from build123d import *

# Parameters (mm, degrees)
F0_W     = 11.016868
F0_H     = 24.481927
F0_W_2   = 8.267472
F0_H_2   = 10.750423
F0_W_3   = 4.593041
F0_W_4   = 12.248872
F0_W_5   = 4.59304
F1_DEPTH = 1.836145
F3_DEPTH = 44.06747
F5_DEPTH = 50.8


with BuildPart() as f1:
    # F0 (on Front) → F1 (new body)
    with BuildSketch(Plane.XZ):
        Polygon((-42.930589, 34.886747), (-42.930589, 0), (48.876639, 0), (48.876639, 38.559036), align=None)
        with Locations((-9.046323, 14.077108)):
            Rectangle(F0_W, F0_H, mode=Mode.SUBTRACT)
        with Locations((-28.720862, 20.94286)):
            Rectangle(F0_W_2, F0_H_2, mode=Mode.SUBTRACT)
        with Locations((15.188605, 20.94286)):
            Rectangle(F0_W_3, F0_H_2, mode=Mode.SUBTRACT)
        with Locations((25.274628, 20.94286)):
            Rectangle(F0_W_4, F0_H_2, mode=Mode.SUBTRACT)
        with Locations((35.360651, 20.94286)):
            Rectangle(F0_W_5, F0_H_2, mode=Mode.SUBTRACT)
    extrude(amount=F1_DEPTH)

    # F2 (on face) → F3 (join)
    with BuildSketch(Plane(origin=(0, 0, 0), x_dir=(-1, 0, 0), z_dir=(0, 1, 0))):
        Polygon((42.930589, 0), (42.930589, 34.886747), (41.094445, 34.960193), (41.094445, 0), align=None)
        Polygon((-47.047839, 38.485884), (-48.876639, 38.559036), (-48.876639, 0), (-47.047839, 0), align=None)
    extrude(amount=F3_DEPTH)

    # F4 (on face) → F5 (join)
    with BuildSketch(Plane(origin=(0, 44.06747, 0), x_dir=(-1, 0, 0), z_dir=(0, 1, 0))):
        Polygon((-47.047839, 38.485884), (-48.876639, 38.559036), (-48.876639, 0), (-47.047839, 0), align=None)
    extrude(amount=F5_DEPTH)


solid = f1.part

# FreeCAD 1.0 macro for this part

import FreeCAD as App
import Part
import Sketcher
from FreeCAD import Vector
Q = App.Units.Quantity


def add_polygon(sketch, points):
    """Adds a closed chain of lines whose ends are joined by coincident constraints."""
    first, n = sketch.GeometryCount, len(points)
    for a, b in zip(points, points[1:] + points[:1]):
        sketch.addGeometry(Part.LineSegment(App.Vector(*a, 0), App.Vector(*b, 0)), False)
    for i in range(n):
        sketch.addConstraint(Sketcher.Constraint("Coincident", first + i, 2, first + (i + 1) % n, 1))

doc = App.newDocument("Part")
body = doc.addObject("PartDesign::Body", "Body")

sketch1 = body.newObject("Sketcher::SketchObject", "Sketch")
sketch1.AttachmentSupport = (doc.getObject("XZ_Plane"), [""])
sketch1.MapMode = "FlatFace"
add_polygon(sketch1, [(-42.9, 34.9), (-42.9, 0), (48.9, 0), (48.9, 38.6)])
add_polygon(sketch1, [(-3.5, 1.8), (-14.6, 1.8), (-14.6, 26.3), (-3.5, 26.3)])
add_polygon(sketch1, [(-24.6, 15.6), (-32.9, 15.6), (-32.9, 26.3), (-24.6, 26.3)])
add_polygon(sketch1, [(17.5, 15.6), (12.9, 15.6), (12.9, 26.3), (17.5, 26.3)])
add_polygon(sketch1, [(31.4, 15.6), (19.2, 15.6), (19.2, 26.3), (31.4, 26.3)])
add_polygon(sketch1, [(37.7, 15.6), (33.1, 15.6), (33.1, 26.3), (37.7, 26.3)])
sketch1.addConstraint([
    Sketcher.Constraint("Vertical", 0),
    Sketcher.Constraint("Horizontal", 1),
    Sketcher.Constraint("Vertical", 2),
    Sketcher.Constraint("Horizontal", 4),
    Sketcher.Constraint("Vertical", 5),
    Sketcher.Constraint("Horizontal", 6),
    Sketcher.Constraint("Vertical", 7),
    Sketcher.Constraint("Horizontal", 8),
    Sketcher.Constraint("Vertical", 9),
    Sketcher.Constraint("Horizontal", 10),
    Sketcher.Constraint("Vertical", 11),
    Sketcher.Constraint("Horizontal", 12),
    Sketcher.Constraint("Vertical", 13),
    Sketcher.Constraint("Horizontal", 14),
    Sketcher.Constraint("Vertical", 15),
    Sketcher.Constraint("Horizontal", 16),
    Sketcher.Constraint("Vertical", 17),
    Sketcher.Constraint("Horizontal", 18),
    Sketcher.Constraint("Vertical", 19),
    Sketcher.Constraint("Horizontal", 20),
    Sketcher.Constraint("Vertical", 21),
    Sketcher.Constraint("Horizontal", 22),
    Sketcher.Constraint("Vertical", 23),
    Sketcher.Constraint("PointOnObject", 0, 2, -1),
    Sketcher.Constraint("Horizontal", 6, 2, 9, 2),
    Sketcher.Constraint("Horizontal", 11, 2, 12, 2),
    Sketcher.Constraint("Horizontal", 10, 2, 13, 2),
    Sketcher.Constraint("Horizontal", 15, 2, 16, 2),
    Sketcher.Constraint("Horizontal", 14, 2, 17, 2),
    Sketcher.Constraint("Horizontal", 19, 2, 20, 2),
    Sketcher.Constraint("Horizontal", 18, 2, 21, 2),
    Sketcher.Constraint("Equal", 14, 20),
    Sketcher.Constraint("DistanceX", 12, 2, 12, 1, 4.593041),
    Sketcher.Constraint("DistanceX", 16, 2, 16, 1, 12.248872),
    Sketcher.Constraint("DistanceX", 8, 2, -1, 1, 32.854598),
    Sketcher.Constraint("DistanceX", 3, 2, 6, 2, 39.3927),
    Sketcher.Constraint("DistanceY", 8, 2, 3, 2, 19.319098),
    Sketcher.Constraint("DistanceX", 1, 1, 1, 2, 91.807228),
    Sketcher.Constraint("DistanceX", 4, 2, 4, 1, 11.016868),
    Sketcher.Constraint("DistanceX", 8, 2, 8, 1, 8.267472),
    Sketcher.Constraint("DistanceY", 0, 2, 0, 1, 34.886747),
    Sketcher.Constraint("DistanceY", 2, 1, 2, 2, 38.559036),
    Sketcher.Constraint("DistanceY", 5, 1, 5, 2, 24.481927),
    Sketcher.Constraint("DistanceY", 9, 1, 9, 2, 10.750423),
    Sketcher.Constraint("DistanceX", 0, 2, -1, 1, 42.930589),
    Sketcher.Constraint("DistanceX", -1, 1, 20, 2, 33.064131),
    Sketcher.Constraint("DistanceX", 5, 2, 12, 2, 27.446841),
    Sketcher.Constraint("DistanceX", 6, 2, 16, 2, 22.688081),
])
pad1 = body.newObject("PartDesign::Pad", "Pad")
pad1.Profile = sketch1
pad1.Length = 1.836145

sketch2 = body.newObject("Sketcher::SketchObject", "Sketch001")
sketch2.AttachmentSupport = (doc.getObject("XZ_Plane"), [""])
sketch2.MapMode = "FlatFace"
add_polygon(sketch2, [(-42.9, 0), (-42.9, 34.9), (-41.1, 35), (-41.1, 0)])
add_polygon(sketch2, [(47, 38.5), (48.9, 38.6), (48.9, 0), (47, 0)])
sketch2.addConstraint([
    Sketcher.Constraint("Vertical", 0),
    Sketcher.Constraint("Vertical", 2),
    Sketcher.Constraint("Horizontal", 3),
    Sketcher.Constraint("Vertical", 5),
    Sketcher.Constraint("Horizontal", 6),
    Sketcher.Constraint("Vertical", 7),
    Sketcher.Constraint("PointOnObject", 2, 2, -1),
    Sketcher.Constraint("PointOnObject", 5, 2, -1),
    Sketcher.Constraint("Parallel", 1, 4),
    Sketcher.Constraint("DistanceX", 6, 2, 6, 1, Q("0.072 in")),
    Sketcher.Constraint("DistanceX", 3, 2, 3, 1, 1.836144),
    Sketcher.Constraint("DistanceY", 0, 1, 0, 2, 34.886747),
    Sketcher.Constraint("DistanceY", 2, 2, 2, 1, 34.960193),
    Sketcher.Constraint("DistanceY", 5, 2, 5, 1, 38.559036),
    Sketcher.Constraint("DistanceX", 0, 2, -1, 1, 42.930589),
    Sketcher.Constraint("DistanceX", -1, 1, 4, 2, 48.876639),
])
pad2 = body.newObject("PartDesign::Pad", "Pad001")
pad2.Profile = sketch2
pad2.Length = 44.06747
pad2.Reversed = True

sketch3 = body.newObject("Sketcher::SketchObject", "Sketch002")
sketch3.AttachmentSupport = (doc.getObject("XZ_Plane"), [""])
sketch3.MapMode = "FlatFace"
sketch3.AttachmentOffset = App.Placement(Vector(0, 0, -44.06747), App.Rotation())
add_polygon(sketch3, [(47, 38.5), (48.9, 38.6), (48.9, 0), (47, 0)])
sketch3.addConstraint([
    Sketcher.Constraint("Vertical", 1),
    Sketcher.Constraint("Horizontal", 2),
    Sketcher.Constraint("Vertical", 3),
    Sketcher.Constraint("PointOnObject", 1, 2, -1),
    Sketcher.Constraint("DistanceX", 2, 2, 2, 1, Q("0.072 in")),
    Sketcher.Constraint("DistanceY", 1, 2, 1, 1, 38.559036),
    Sketcher.Constraint("DistanceY", 3, 1, 3, 2, 38.485884),
    Sketcher.Constraint("DistanceX", -1, 1, 0, 2, 48.876639),
])
pad3 = body.newObject("PartDesign::Pad", "Pad002")
pad3.Profile = sketch3
pad3.Length = Q("2 in")
pad3.Reversed = True

doc.recompute()
